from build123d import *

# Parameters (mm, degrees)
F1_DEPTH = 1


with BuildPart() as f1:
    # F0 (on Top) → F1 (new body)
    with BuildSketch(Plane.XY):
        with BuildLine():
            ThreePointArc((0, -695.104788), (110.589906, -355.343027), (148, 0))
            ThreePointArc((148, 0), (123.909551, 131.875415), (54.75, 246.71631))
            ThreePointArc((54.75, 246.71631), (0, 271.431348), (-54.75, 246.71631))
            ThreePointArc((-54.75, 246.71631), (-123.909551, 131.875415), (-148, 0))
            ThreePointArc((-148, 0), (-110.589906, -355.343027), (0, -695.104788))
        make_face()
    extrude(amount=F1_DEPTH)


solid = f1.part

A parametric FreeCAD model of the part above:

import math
import FreeCAD as App
import Part
import Sketcher
from FreeCAD import Vector

doc = App.newDocument("Part")
body = doc.addObject("PartDesign::Body", "Body")

# Sketch on XY plane
sketch1 = body.newObject("Sketcher::SketchObject", "Sketch")
sketch1.AttachmentSupport = (doc.getObject("XY_Plane"), [""])
sketch1.MapMode = "FlatFace"
sketch1.addGeometry(Part.ArcOfCircle(Part.Circle(Vector(-1558, 0, 0), Vector(0, 0, 1), 1706), math.radians(-24), math.radians(0)), False)
sketch1.addGeometry(Part.ArcOfCircle(Part.Circle(Vector(-225, 0, 0), Vector(0, 0, 1), 373), math.radians(0), math.radians(41)), False)
sketch1.addGeometry(Part.ArcOfCircle(Part.Circle(Vector(0, 198, 0), Vector(0, 0, 1), 73), math.radians(41), math.radians(139)), False)
sketch1.addGeometry(Part.ArcOfCircle(Part.Circle(Vector(225, 0, 0), Vector(0, 0, 1), 373), math.radians(139), math.radians(180)), False)
sketch1.addGeometry(Part.ArcOfCircle(Part.Circle(Vector(1558, 0, 0), Vector(0, 0, 1), 1706), math.radians(180), math.radians(204)), False)
sketch1.addConstraint(Sketcher.Constraint("Tangent", 0, 2, 1, 1))
sketch1.addConstraint(Sketcher.Constraint("Tangent", 1, 2, 2, 1))
sketch1.addConstraint(Sketcher.Constraint("Tangent", 2, 2, 3, 1))
sketch1.addConstraint(Sketcher.Constraint("Tangent", 3, 2, 4, 1))
sketch1.addConstraint(Sketcher.Constraint("Coincident", 4, 2, 0, 1))
sketch1.addConstraint(Sketcher.Constraint("Equal", 1, 3))
sketch1.addConstraint(Sketcher.Constraint("Equal", 0, 4))
sketch1.addConstraint(Sketcher.Constraint("Symmetric", 1, 3, 3, 3, -1, 1))
sketch1.addConstraint(Sketcher.Constraint("PointOnObject", 1, 3, -1))
sketch1.addConstraint(Sketcher.Constraint("Horizontal", 0, 3, 4, 3))
sketch1.addConstraint(Sketcher.Constraint("Radius", 2, 73.000001))
sketch1.addConstraint(Sketcher.Constraint("DistanceX", -1, 1, 0, 2, 148.0))
sketch1.addConstraint(Sketcher.Constraint("Radius", 0, 1706.333315))
sketch1.addConstraint(Sketcher.Constraint("Radius", 1, 373.000004))
sketch1.addConstraint(Sketcher.Constraint("DistanceY", 0, 3, 2, 3, 198.43135))
pad1 = body.newObject("PartDesign::Pad", "Pad")
pad1.Profile = sketch1
pad1.Length = 1

doc.recompute()
